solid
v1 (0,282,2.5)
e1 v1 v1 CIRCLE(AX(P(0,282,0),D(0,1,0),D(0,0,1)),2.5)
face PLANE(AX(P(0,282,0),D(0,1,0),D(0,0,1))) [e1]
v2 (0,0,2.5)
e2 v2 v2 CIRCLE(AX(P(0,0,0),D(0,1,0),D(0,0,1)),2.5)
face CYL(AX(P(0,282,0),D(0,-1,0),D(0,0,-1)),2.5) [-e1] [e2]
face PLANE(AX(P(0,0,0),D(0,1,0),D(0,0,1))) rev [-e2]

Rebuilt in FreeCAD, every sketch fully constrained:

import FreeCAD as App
import Part
import Sketcher
from FreeCAD import Vector
Q = App.Units.Quantity

doc = App.newDocument("Part")
body = doc.addObject("PartDesign::Body", "Body")

# Sketch on XZ plane
sketch1 = doc.addObject("Sketcher::SketchObject", "Sketch")
body.addObject(sketch1)
sketch1.AttachmentSupport = (doc.XZ_Plane, [""])
sketch1.MapMode = "FlatFace"
sketch1.addGeometry(Part.Circle(Vector(0, 0, 0), Vector(0, 0, 1), 2.5), False)
sketch1.addConstraint(Sketcher.Constraint("Coincident", 0, 3, -1, 1))
sketch1.addConstraint(Sketcher.Constraint("Diameter", 0, Q("5 mm")))
pad1 = doc.addObject("PartDesign::Pad", "Pad")
body.addObject(pad1)
pad1.Profile = sketch1
pad1.Length = 282
pad1.Reversed = True

doc.recompute()
